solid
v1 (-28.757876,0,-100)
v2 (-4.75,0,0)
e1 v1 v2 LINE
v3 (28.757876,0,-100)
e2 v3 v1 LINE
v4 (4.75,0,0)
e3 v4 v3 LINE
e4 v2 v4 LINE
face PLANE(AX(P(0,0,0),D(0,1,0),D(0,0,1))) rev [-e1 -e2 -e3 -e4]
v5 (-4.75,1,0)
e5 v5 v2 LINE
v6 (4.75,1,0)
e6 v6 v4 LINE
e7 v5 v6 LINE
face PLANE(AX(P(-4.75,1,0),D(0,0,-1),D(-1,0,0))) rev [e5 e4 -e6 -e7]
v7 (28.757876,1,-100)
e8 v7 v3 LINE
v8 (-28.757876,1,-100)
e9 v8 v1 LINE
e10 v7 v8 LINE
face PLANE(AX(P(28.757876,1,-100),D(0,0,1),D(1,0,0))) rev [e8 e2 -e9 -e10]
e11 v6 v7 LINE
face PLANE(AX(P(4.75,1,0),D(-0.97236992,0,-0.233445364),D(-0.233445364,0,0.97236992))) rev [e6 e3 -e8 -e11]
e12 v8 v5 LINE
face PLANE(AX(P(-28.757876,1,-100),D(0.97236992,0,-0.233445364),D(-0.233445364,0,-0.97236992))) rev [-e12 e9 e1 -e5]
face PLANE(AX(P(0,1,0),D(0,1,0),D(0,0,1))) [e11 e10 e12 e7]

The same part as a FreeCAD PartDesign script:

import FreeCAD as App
import Part
import Sketcher
Q = App.Units.Quantity


def add_polygon(sketch, points):
    """Adds a closed chain of lines whose ends are joined by coincident constraints."""
    first, n = sketch.GeometryCount, len(points)
    for a, b in zip(points, points[1:] + points[:1]):
        sketch.addGeometry(Part.LineSegment(App.Vector(*a, 0), App.Vector(*b, 0)), False)
    for i in range(n):
        sketch.addConstraint(Sketcher.Constraint("Coincident", first + i, 2, first + (i + 1) % n, 1))

doc = App.newDocument("Part")
body = doc.addObject("PartDesign::Body", "Body")

# Sketch on XZ plane
sketch1 = body.newObject("Sketcher::SketchObject", "Sketch")
sketch1.AttachmentSupport = (doc.getObject("XZ_Plane"), [""])
sketch1.MapMode = "FlatFace"
add_polygon(sketch1, [(5, 0), (29, -100), (-29, -100), (-5, 0)])  # lines 0-3
sketch1.addConstraint(Sketcher.Constraint("Horizontal", 1))
sketch1.addConstraint(Sketcher.Constraint("Horizontal", 3))
sketch1.addConstraint(Sketcher.Constraint("Symmetric", 2, 2, 3, 2, -1, 1))
sketch1.addConstraint(Sketcher.Constraint("Equal", 0, 2))
sketch1.addConstraint(Sketcher.Constraint("DistanceX", 3, 1, 3, 2, Q("9.5 mm")))
sketch1.addConstraint(Sketcher.Constraint("DistanceY", 0, 2, -1, 1, Q("100 mm")))
sketch1.addConstraint(Sketcher.Constraint("Angle", 0, Q("-76.5 deg")))
pad1 = body.newObject("PartDesign::Pad", "Pad")
pad1.Profile = sketch1
pad1.Length = 1
pad1.Reversed = True

doc.recompute()
